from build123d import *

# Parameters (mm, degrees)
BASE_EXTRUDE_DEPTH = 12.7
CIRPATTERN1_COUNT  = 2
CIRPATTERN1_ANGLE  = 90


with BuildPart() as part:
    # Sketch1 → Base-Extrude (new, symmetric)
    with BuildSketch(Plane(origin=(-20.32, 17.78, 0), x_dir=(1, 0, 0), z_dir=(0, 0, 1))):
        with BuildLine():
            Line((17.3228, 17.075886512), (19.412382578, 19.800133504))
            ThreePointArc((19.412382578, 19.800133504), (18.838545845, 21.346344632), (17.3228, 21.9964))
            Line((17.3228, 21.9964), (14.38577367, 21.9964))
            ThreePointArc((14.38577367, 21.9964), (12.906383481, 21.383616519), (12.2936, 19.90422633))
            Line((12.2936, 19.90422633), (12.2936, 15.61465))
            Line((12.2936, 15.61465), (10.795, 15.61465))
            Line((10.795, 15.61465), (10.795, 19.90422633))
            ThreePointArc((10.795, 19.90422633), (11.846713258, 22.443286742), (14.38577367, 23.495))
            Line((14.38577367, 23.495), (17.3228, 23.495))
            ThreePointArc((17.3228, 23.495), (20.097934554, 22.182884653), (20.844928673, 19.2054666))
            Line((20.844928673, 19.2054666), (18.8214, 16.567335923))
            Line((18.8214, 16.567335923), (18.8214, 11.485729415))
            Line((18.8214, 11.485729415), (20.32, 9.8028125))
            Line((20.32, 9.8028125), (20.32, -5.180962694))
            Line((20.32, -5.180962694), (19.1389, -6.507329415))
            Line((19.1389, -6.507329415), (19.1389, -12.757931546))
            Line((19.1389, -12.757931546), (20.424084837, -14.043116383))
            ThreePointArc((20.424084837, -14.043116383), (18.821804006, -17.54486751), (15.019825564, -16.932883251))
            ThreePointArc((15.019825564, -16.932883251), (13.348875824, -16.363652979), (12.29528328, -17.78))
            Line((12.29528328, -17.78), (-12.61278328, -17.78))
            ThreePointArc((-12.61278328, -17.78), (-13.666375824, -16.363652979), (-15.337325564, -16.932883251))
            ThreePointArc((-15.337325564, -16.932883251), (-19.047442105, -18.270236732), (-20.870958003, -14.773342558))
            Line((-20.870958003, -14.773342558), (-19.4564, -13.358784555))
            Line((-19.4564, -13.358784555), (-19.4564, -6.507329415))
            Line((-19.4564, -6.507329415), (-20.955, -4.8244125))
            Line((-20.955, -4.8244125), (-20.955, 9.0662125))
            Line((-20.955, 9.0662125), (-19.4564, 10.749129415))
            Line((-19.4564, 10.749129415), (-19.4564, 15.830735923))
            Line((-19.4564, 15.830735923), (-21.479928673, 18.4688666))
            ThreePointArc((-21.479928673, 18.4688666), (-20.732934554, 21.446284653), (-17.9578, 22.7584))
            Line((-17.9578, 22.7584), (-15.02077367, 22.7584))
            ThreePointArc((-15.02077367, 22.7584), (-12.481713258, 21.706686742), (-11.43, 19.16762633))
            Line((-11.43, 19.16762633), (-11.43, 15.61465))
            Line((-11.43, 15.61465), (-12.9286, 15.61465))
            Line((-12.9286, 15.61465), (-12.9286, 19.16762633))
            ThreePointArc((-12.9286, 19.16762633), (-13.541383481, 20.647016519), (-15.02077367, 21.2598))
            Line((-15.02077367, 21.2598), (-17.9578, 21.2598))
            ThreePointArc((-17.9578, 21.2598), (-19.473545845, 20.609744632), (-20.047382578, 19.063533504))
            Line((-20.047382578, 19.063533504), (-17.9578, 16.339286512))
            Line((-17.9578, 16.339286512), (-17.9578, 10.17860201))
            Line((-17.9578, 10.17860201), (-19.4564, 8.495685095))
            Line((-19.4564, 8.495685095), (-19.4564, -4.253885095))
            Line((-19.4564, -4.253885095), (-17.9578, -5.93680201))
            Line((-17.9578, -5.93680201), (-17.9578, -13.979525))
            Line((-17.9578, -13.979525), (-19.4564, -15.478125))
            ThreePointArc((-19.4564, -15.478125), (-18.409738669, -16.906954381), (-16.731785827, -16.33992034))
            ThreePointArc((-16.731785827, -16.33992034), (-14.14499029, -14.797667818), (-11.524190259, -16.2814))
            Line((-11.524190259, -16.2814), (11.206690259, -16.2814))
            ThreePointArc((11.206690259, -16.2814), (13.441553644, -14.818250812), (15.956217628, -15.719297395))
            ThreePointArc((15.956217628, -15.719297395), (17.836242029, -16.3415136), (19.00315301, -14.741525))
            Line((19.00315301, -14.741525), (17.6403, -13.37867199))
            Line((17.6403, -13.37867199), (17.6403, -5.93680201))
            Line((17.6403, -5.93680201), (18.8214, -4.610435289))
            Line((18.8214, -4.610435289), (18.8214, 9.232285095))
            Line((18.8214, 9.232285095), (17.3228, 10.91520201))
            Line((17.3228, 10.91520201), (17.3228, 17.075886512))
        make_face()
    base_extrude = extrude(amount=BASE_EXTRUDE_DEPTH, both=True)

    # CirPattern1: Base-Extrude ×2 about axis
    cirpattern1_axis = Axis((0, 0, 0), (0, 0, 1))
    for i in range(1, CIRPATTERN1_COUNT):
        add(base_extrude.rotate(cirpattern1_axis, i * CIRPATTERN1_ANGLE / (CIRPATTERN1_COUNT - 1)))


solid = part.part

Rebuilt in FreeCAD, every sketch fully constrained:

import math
import FreeCAD as App
import Part
import Sketcher
Q = App.Units.Quantity

doc = App.newDocument("Part")
body = doc.addObject("PartDesign::Body", "Body")

sketch1 = body.newObject("Sketcher::SketchObject", "Sketch")
sketch1.AttachmentSupport = (doc.getObject("XY_Plane"), [""])
sketch1.MapMode = "FlatFace"
sketch1.addGeometry([
    Part.LineSegment(App.Vector(-0.9, 37.6, 0), App.Vector(-3, 34.9, 0)),
    Part.LineSegment(App.Vector(-3, 34.9, 0), App.Vector(-3, 28.7, 0)),
    Part.LineSegment(App.Vector(-3, 28.7, 0), App.Vector(-1.5, 27, 0)),
    Part.LineSegment(App.Vector(-1.5, 27, 0), App.Vector(-1.5, 13.2, 0)),
    Part.LineSegment(App.Vector(-1.5, 13.2, 0), App.Vector(-2.7, 11.8, 0)),
    Part.LineSegment(App.Vector(-2.7, 11.8, 0), App.Vector(-2.7, 4.4, 0)),
    Part.LineSegment(App.Vector(-2.7, 4.4, 0), App.Vector(-1.3, 3, 0)),
    Part.ArcOfCircle(Part.Circle(App.Vector(-3, 3, 0), App.Vector(0, 0, 1), 1.7), math.radians(-144), math.radians(0)),
    Part.ArcOfCircle(Part.Circle(App.Vector(-6.5, 0, 0), App.Vector(0, 0, 1), 3), math.radians(44), math.radians(150)),
    Part.LineSegment(App.Vector(-9.1, 1.5, 0), App.Vector(-31.8, 1.5, 0)),
    Part.ArcOfCircle(Part.Circle(App.Vector(-34.4, 0, 0), App.Vector(0, 0, 1), 3), math.radians(30), math.radians(151)),
    Part.ArcOfCircle(Part.Circle(App.Vector(-38.3, 2.3, 0), App.Vector(0, 0, 1), 1.5), math.radians(180), math.radians(325)),
    Part.LineSegment(App.Vector(-39.8, 2.3, 0), App.Vector(-38.3, 3.8, 0)),
    Part.LineSegment(App.Vector(-38.3, 3.8, 0), App.Vector(-38.3, 11.8, 0)),
    Part.LineSegment(App.Vector(-38.3, 11.8, 0), App.Vector(-39.8, 13.5, 0)),
    Part.LineSegment(App.Vector(-39.8, 13.5, 0), App.Vector(-39.8, 26.3, 0)),
    Part.LineSegment(App.Vector(-39.8, 26.3, 0), App.Vector(-38.3, 28, 0)),
    Part.LineSegment(App.Vector(-38.3, 28, 0), App.Vector(-38.3, 34.1, 0)),
    Part.LineSegment(App.Vector(-38.3, 34.1, 0), App.Vector(-40.4, 36.8, 0)),
    Part.ArcOfCircle(Part.Circle(App.Vector(-38.3, 36.9, 0), App.Vector(0, 0, 1), 2.1), math.radians(90), math.radians(183)),
    Part.LineSegment(App.Vector(-38.3, 39, 0), App.Vector(-35.3, 39, 0)),
    Part.ArcOfCircle(Part.Circle(App.Vector(-35.3, 36.9, 0), App.Vector(0, 0, 1), 2.1), math.radians(0), math.radians(90)),
    Part.LineSegment(App.Vector(-33.2, 36.9, 0), App.Vector(-33.2, 33.4, 0)),
    Part.LineSegment(App.Vector(-33.2, 33.4, 0), App.Vector(-31.8, 33.4, 0)),
    Part.LineSegment(App.Vector(-31.8, 33.4, 0), App.Vector(-31.8, 36.9, 0)),
    Part.ArcOfCircle(Part.Circle(App.Vector(-35.3, 36.9, 0), App.Vector(0, 0, 1), 3.6), math.radians(0), math.radians(90)),
    Part.LineSegment(App.Vector(-35.3, 40.5, 0), App.Vector(-38.3, 40.5, 0)),
    Part.ArcOfCircle(Part.Circle(App.Vector(-38.3, 36.9, 0), App.Vector(0, 0, 1), 3.6), math.radians(90), math.radians(191)),
    Part.LineSegment(App.Vector(-41.8, 36.2, 0), App.Vector(-39.8, 33.6, 0)),
    Part.LineSegment(App.Vector(-39.8, 33.6, 0), App.Vector(-39.8, 28.5, 0)),
    Part.LineSegment(App.Vector(-39.8, 28.5, 0), App.Vector(-41.3, 26.8, 0)),
    Part.LineSegment(App.Vector(-41.3, 26.8, 0), App.Vector(-41.3, 13, 0)),
    Part.LineSegment(App.Vector(-41.3, 13, 0), App.Vector(-39.8, 11.3, 0)),
    Part.LineSegment(App.Vector(-39.8, 11.3, 0), App.Vector(-39.8, 4.4, 0)),
    Part.LineSegment(App.Vector(-39.8, 4.4, 0), App.Vector(-41.2, 3, 0)),
    Part.ArcOfCircle(Part.Circle(App.Vector(-38.3, 2.3, 0), App.Vector(0, 0, 1), 3), math.radians(166), math.radians(331)),
    Part.ArcOfCircle(Part.Circle(App.Vector(-34.4, 0, 0), App.Vector(0, 0, 1), 1.5), math.radians(1), math.radians(145)),
    Part.LineSegment(App.Vector(-32.9, 0, 0), App.Vector(-8, 0, 0)),
    Part.ArcOfCircle(Part.Circle(App.Vector(-6.5, 0, 0), App.Vector(0, 0, 1), 1.5), math.radians(35), math.radians(179)),
    Part.ArcOfCircle(Part.Circle(App.Vector(-3, 3, 0), App.Vector(0, 0, 1), 3.2), math.radians(-136), math.radians(13)),
    Part.LineSegment(App.Vector(0.1, 3.7, 0), App.Vector(-1.2, 5, 0)),
    Part.LineSegment(App.Vector(-1.2, 5, 0), App.Vector(-1.2, 11.3, 0)),
    Part.LineSegment(App.Vector(-1.2, 11.3, 0), App.Vector(0, 12.6, 0)),
    Part.LineSegment(App.Vector(0, 12.6, 0), App.Vector(0, 27.6, 0)),
    Part.LineSegment(App.Vector(0, 27.6, 0), App.Vector(-1.5, 29.3, 0)),
    Part.LineSegment(App.Vector(-1.5, 29.3, 0), App.Vector(-1.5, 34.3, 0)),
    Part.LineSegment(App.Vector(-1.5, 34.3, 0), App.Vector(0.5, 37, 0)),
    Part.ArcOfCircle(Part.Circle(App.Vector(-3, 37.7, 0), App.Vector(0, 0, 1), 3.6), math.radians(-11), math.radians(90)),
    Part.LineSegment(App.Vector(-3, 41.3, 0), App.Vector(-5.9, 41.3, 0)),
    Part.ArcOfCircle(Part.Circle(App.Vector(-5.9, 37.7, 0), App.Vector(0, 0, 1), 3.6), math.radians(90), math.radians(180)),
    Part.LineSegment(App.Vector(-9.5, 37.7, 0), App.Vector(-9.5, 33.4, 0)),
    Part.LineSegment(App.Vector(-9.5, 33.4, 0), App.Vector(-8, 33.4, 0)),
    Part.LineSegment(App.Vector(-8, 33.4, 0), App.Vector(-8, 37.7, 0)),
    Part.ArcOfCircle(Part.Circle(App.Vector(-5.9, 37.7, 0), App.Vector(0, 0, 1), 2.1), math.radians(90), math.radians(180)),
    Part.LineSegment(App.Vector(-5.9, 39.8, 0), App.Vector(-3, 39.8, 0)),
    Part.ArcOfCircle(Part.Circle(App.Vector(-3, 37.7, 0), App.Vector(0, 0, 1), 2.1), math.radians(-3), math.radians(90)),
], False)
sketch1.addConstraint([
    Sketcher.Constraint("Coincident", 0, 2, 1, 1),
    Sketcher.Constraint("Coincident", 1, 2, 2, 1),
    Sketcher.Constraint("Coincident", 2, 2, 3, 1),
    Sketcher.Constraint("Coincident", 3, 2, 4, 1),
    Sketcher.Constraint("Coincident", 4, 2, 5, 1),
    Sketcher.Constraint("Coincident", 5, 2, 6, 1),
    Sketcher.Constraint("Coincident", 6, 2, 7, 2),
    Sketcher.Constraint("Coincident", 7, 1, 8, 1),
    Sketcher.Constraint("Coincident", 8, 2, 9, 1),
    Sketcher.Constraint("Coincident", 9, 2, 10, 1),
    Sketcher.Constraint("Coincident", 10, 2, 11, 2),
    Sketcher.Constraint("Coincident", 11, 1, 12, 1),
    Sketcher.Constraint("Coincident", 12, 2, 13, 1),
    Sketcher.Constraint("Coincident", 13, 2, 14, 1),
    Sketcher.Constraint("Coincident", 14, 2, 15, 1),
    Sketcher.Constraint("Coincident", 15, 2, 16, 1),
    Sketcher.Constraint("Coincident", 16, 2, 17, 1),
    Sketcher.Constraint("Coincident", 17, 2, 18, 1),
    Sketcher.Constraint("Coincident", 18, 2, 19, 2),
    Sketcher.Constraint("Tangent", 19, 1, 20, 1),
    Sketcher.Constraint("Tangent", 20, 2, 21, 2),
    Sketcher.Constraint("Tangent", 21, 1, 22, 1),
    Sketcher.Constraint("Coincident", 22, 2, 23, 1),
    Sketcher.Constraint("Coincident", 23, 2, 24, 1),
    Sketcher.Constraint("Tangent", 24, 2, 25, 1),
    Sketcher.Constraint("Tangent", 25, 2, 26, 1),
    Sketcher.Constraint("Tangent", 26, 2, 27, 1),
    Sketcher.Constraint("Coincident", 27, 2, 28, 1),
    Sketcher.Constraint("Coincident", 28, 2, 29, 1),
    Sketcher.Constraint("Coincident", 29, 2, 30, 1),
    Sketcher.Constraint("Coincident", 30, 2, 31, 1),
    Sketcher.Constraint("Coincident", 31, 2, 32, 1),
    Sketcher.Constraint("Coincident", 32, 2, 33, 1),
    Sketcher.Constraint("Coincident", 33, 2, 34, 1),
    Sketcher.Constraint("Coincident", 34, 2, 35, 1),
    Sketcher.Constraint("Coincident", 35, 2, 36, 2),
    Sketcher.Constraint("Coincident", 36, 1, 37, 1),
    Sketcher.Constraint("Coincident", 37, 2, 38, 2),
    Sketcher.Constraint("Coincident", 38, 1, 39, 1),
    Sketcher.Constraint("Coincident", 39, 2, 40, 1),
    Sketcher.Constraint("Coincident", 40, 2, 41, 1),
    Sketcher.Constraint("Coincident", 41, 2, 42, 1),
    Sketcher.Constraint("Coincident", 42, 2, 43, 1),
    Sketcher.Constraint("Coincident", 43, 2, 44, 1),
    Sketcher.Constraint("Coincident", 44, 2, 45, 1),
    Sketcher.Constraint("Coincident", 45, 2, 46, 1),
    Sketcher.Constraint("Coincident", 46, 2, 47, 1),
    Sketcher.Constraint("Tangent", 47, 2, 48, 1),
    Sketcher.Constraint("Tangent", 48, 2, 49, 1),
    Sketcher.Constraint("Tangent", 49, 2, 50, 1),
    Sketcher.Constraint("Coincident", 50, 2, 51, 1),
    Sketcher.Constraint("Coincident", 51, 2, 52, 1),
    Sketcher.Constraint("Tangent", 52, 2, 53, 2),
    Sketcher.Constraint("Tangent", 53, 1, 54, 1),
    Sketcher.Constraint("Tangent", 54, 2, 55, 2),
    Sketcher.Constraint("Coincident", 55, 1, 0, 1),
    Sketcher.Constraint("Vertical", 1),
    Sketcher.Constraint("Vertical", 3),
    Sketcher.Constraint("Vertical", 5),
    Sketcher.Constraint("Horizontal", 9),
    Sketcher.Constraint("Vertical", 13),
    Sketcher.Constraint("Vertical", 15),
    Sketcher.Constraint("Vertical", 17),
    Sketcher.Constraint("Horizontal", 20),
    Sketcher.Constraint("Vertical", 22),
    Sketcher.Constraint("Horizontal", 23),
    Sketcher.Constraint("Vertical", 24),
    Sketcher.Constraint("Horizontal", 26),
    Sketcher.Constraint("Vertical", 29),
    Sketcher.Constraint("Vertical", 31),
    Sketcher.Constraint("Vertical", 33),
    Sketcher.Constraint("Horizontal", 37),
    Sketcher.Constraint("Vertical", 41),
    Sketcher.Constraint("Vertical", 43),
    Sketcher.Constraint("Vertical", 45),
    Sketcher.Constraint("Horizontal", 48),
    Sketcher.Constraint("Vertical", 50),
    Sketcher.Constraint("Horizontal", 51),
    Sketcher.Constraint("Vertical", 52),
    Sketcher.Constraint("Horizontal", 54),
    Sketcher.Constraint("Coincident", 25, 3, 21, 3),
    Sketcher.Constraint("Coincident", 27, 3, 19, 3),
    Sketcher.Constraint("Coincident", 35, 3, 11, 3),
    Sketcher.Constraint("Coincident", 36, 3, 10, 3),
    Sketcher.Constraint("Coincident", 38, 3, 8, 3),
    Sketcher.Constraint("Coincident", 39, 3, 7, 3),
    Sketcher.Constraint("Coincident", 53, 3, 49, 3),
    Sketcher.Constraint("Coincident", 55, 3, 47, 3),
    Sketcher.Constraint("Equal", 8, 10),
    Sketcher.Constraint("Equal", 19, 21),
    Sketcher.Constraint("Equal", 10, 35),
    Sketcher.Constraint("Equal", 11, 36),
    Sketcher.Constraint("Equal", 36, 38),
    Sketcher.Constraint("Equal", 27, 47),
    Sketcher.Constraint("Equal", 47, 49),
    Sketcher.Constraint("Equal", 21, 53),
    Sketcher.Constraint("PointOnObject", 36, 1, -1),
    Sketcher.Constraint("PointOnObject", 42, 2, -2),
    Sketcher.Constraint("Perpendicular", 6, 12),
    Sketcher.Constraint("Parallel", 2, 14),
    Sketcher.Constraint("Parallel", 4, 16),
    Sketcher.Constraint("Parallel", 18, 28),
    Sketcher.Constraint("Parallel", 16, 30),
    Sketcher.Constraint("Parallel", 14, 32),
    Sketcher.Constraint("Parallel", 12, 34),
    Sketcher.Constraint("Perpendicular", 34, 40),
    Sketcher.Constraint("Parallel", 30, 42),
    Sketcher.Constraint("Parallel", 32, 44),
    Sketcher.Constraint("Parallel", 0, 46),
    Sketcher.Constraint("Horizontal", 8, 3, 10, 3),
    Sketcher.Constraint("Horizontal", 39, 3, 6, 2),
    Sketcher.Constraint("Horizontal", 35, 3, 11, 1),
    Sketcher.Constraint("Horizontal", 4, 2, 13, 2),
    Sketcher.Constraint("Horizontal", 35, 2, 38, 1),
    Sketcher.Constraint("Horizontal", 32, 2, 41, 2),
    Sketcher.Constraint("Horizontal", 23, 2, 50, 2),
    Sketcher.Constraint("Vertical", 11, 3, 19, 3),
    Sketcher.Constraint("Vertical", 39, 3, 47, 3),
    Sketcher.Constraint("Vertical", 55, 3, 0, 2),
    Sketcher.Constraint("Vertical", 35, 3, 12, 2),
    Sketcher.Constraint("Vertical", 11, 1, 14, 2),
    Sketcher.Constraint("Vertical", 13, 2, 16, 2),
    Sketcher.Constraint("Vertical", 15, 2, 28, 2),
    Sketcher.Constraint("Vertical", 29, 2, 32, 2),
    Sketcher.Constraint("Vertical", 3, 2, 44, 2),
    Sketcher.Constraint("Equal", 26, 48),
    Sketcher.Constraint("Equal", 1, 17),
    Sketcher.Constraint("Equal", 29, 45),
    Sketcher.Constraint("Equal", 2, 14),
    Sketcher.Constraint("Equal", 14, 16),
    Sketcher.Constraint("Equal", 0, 18),
    Sketcher.Constraint("Equal", 16, 30),
    Sketcher.Constraint("Equal", 4, 42),
    Sketcher.Constraint("Equal", 32, 44),
    Sketcher.Constraint("Equal", 28, 46),
    Sketcher.Constraint("Angle", 6, Q("-45 deg")),
    Sketcher.Constraint("Radius", 8, Q("0.118 in")),
    Sketcher.Constraint("Radius", 11, Q("0.059 in")),
    Sketcher.Constraint("DistanceX", 23, 1, 23, 2, Q("0.059 in")),
    Sketcher.Constraint("DistanceY", 31, 2, 31, 1, Q("0.546875 in")),
    Sketcher.Constraint("DistanceX", 23, 2, -1, 1, Q("1.25 in")),
    Sketcher.Constraint("DistanceX", 11, 3, -1, 1, Q("1.507 in")),
    Sketcher.Constraint("DistanceY", -1, 1, 8, 2, Q("0.059 in")),
    Sketcher.Constraint("DistanceY", -1, 1, 19, 1, Q("1.537 in")),
    Sketcher.Constraint("DistanceY", -1, 1, 47, 2, Q("1.625 in")),
    Sketcher.Constraint("DistanceX", 4, 2, -1, 1, Q("0.1055 in")),
    Sketcher.Constraint("Radius", 7, Q("1.680353 mm")),
    Sketcher.Constraint("Radius", 19, Q("2.092174 mm")),
    Sketcher.Constraint("Radius", 39, Q("3.178953 mm")),
    Sketcher.Constraint("DistanceX", 9, 2, 9, 1, Q("22.730881 mm")),
    Sketcher.Constraint("DistanceY", 3, 2, 3, 1, Q("13.84272 mm")),
    Sketcher.Constraint("DistanceY", 5, 2, 5, 1, Q("7.44187 mm")),
    Sketcher.Constraint("DistanceY", 15, 1, 15, 2, Q("12.74957 mm")),
    Sketcher.Constraint("Distance", 4, Q("1.77602 mm")),
    Sketcher.Constraint("DistanceX", 37, 1, 37, 2, Q("24.908067 mm")),
    Sketcher.Constraint("DistanceY", 1, 2, 1, 1, Q("6.160685 mm")),
    Sketcher.Constraint("DistanceY", 13, 1, 13, 2, Q("8.042723 mm")),
    Sketcher.Constraint("DistanceY", 22, 2, 22, 1, Q("3.552976 mm")),
    Sketcher.Constraint("DistanceY", 29, 2, 29, 1, Q("5.081607 mm")),
    Sketcher.Constraint("DistanceY", 33, 2, 33, 1, Q("6.851455 mm")),
    Sketcher.Constraint("DistanceY", 41, 1, 41, 2, Q("6.250602 mm")),
    Sketcher.Constraint("DistanceX", 8, 3, -1, 1, Q("6.526189 mm")),
    Sketcher.Constraint("DistanceX", 27, 2, -1, 1, Q("41.799929 mm")),
    Sketcher.Constraint("DistanceY", -1, 1, 29, 2, Q("28.529129 mm")),
])
pad1 = body.newObject("PartDesign::Pad", "Pad")
pad1.Profile = sketch1
pad1.Length = Q("1 in")
pad1.Midplane = True
doc.recompute()

polarpattern = body.newObject("PartDesign::PolarPattern", "PolarPattern")
polarpattern.Originals = [pad1]
polarpattern.Axis = (doc.getObject("Z_Axis"), [""])
polarpattern.Angle = 90
polarpattern.Occurrences = 2
body.Tip = polarpattern

doc.recompute()
